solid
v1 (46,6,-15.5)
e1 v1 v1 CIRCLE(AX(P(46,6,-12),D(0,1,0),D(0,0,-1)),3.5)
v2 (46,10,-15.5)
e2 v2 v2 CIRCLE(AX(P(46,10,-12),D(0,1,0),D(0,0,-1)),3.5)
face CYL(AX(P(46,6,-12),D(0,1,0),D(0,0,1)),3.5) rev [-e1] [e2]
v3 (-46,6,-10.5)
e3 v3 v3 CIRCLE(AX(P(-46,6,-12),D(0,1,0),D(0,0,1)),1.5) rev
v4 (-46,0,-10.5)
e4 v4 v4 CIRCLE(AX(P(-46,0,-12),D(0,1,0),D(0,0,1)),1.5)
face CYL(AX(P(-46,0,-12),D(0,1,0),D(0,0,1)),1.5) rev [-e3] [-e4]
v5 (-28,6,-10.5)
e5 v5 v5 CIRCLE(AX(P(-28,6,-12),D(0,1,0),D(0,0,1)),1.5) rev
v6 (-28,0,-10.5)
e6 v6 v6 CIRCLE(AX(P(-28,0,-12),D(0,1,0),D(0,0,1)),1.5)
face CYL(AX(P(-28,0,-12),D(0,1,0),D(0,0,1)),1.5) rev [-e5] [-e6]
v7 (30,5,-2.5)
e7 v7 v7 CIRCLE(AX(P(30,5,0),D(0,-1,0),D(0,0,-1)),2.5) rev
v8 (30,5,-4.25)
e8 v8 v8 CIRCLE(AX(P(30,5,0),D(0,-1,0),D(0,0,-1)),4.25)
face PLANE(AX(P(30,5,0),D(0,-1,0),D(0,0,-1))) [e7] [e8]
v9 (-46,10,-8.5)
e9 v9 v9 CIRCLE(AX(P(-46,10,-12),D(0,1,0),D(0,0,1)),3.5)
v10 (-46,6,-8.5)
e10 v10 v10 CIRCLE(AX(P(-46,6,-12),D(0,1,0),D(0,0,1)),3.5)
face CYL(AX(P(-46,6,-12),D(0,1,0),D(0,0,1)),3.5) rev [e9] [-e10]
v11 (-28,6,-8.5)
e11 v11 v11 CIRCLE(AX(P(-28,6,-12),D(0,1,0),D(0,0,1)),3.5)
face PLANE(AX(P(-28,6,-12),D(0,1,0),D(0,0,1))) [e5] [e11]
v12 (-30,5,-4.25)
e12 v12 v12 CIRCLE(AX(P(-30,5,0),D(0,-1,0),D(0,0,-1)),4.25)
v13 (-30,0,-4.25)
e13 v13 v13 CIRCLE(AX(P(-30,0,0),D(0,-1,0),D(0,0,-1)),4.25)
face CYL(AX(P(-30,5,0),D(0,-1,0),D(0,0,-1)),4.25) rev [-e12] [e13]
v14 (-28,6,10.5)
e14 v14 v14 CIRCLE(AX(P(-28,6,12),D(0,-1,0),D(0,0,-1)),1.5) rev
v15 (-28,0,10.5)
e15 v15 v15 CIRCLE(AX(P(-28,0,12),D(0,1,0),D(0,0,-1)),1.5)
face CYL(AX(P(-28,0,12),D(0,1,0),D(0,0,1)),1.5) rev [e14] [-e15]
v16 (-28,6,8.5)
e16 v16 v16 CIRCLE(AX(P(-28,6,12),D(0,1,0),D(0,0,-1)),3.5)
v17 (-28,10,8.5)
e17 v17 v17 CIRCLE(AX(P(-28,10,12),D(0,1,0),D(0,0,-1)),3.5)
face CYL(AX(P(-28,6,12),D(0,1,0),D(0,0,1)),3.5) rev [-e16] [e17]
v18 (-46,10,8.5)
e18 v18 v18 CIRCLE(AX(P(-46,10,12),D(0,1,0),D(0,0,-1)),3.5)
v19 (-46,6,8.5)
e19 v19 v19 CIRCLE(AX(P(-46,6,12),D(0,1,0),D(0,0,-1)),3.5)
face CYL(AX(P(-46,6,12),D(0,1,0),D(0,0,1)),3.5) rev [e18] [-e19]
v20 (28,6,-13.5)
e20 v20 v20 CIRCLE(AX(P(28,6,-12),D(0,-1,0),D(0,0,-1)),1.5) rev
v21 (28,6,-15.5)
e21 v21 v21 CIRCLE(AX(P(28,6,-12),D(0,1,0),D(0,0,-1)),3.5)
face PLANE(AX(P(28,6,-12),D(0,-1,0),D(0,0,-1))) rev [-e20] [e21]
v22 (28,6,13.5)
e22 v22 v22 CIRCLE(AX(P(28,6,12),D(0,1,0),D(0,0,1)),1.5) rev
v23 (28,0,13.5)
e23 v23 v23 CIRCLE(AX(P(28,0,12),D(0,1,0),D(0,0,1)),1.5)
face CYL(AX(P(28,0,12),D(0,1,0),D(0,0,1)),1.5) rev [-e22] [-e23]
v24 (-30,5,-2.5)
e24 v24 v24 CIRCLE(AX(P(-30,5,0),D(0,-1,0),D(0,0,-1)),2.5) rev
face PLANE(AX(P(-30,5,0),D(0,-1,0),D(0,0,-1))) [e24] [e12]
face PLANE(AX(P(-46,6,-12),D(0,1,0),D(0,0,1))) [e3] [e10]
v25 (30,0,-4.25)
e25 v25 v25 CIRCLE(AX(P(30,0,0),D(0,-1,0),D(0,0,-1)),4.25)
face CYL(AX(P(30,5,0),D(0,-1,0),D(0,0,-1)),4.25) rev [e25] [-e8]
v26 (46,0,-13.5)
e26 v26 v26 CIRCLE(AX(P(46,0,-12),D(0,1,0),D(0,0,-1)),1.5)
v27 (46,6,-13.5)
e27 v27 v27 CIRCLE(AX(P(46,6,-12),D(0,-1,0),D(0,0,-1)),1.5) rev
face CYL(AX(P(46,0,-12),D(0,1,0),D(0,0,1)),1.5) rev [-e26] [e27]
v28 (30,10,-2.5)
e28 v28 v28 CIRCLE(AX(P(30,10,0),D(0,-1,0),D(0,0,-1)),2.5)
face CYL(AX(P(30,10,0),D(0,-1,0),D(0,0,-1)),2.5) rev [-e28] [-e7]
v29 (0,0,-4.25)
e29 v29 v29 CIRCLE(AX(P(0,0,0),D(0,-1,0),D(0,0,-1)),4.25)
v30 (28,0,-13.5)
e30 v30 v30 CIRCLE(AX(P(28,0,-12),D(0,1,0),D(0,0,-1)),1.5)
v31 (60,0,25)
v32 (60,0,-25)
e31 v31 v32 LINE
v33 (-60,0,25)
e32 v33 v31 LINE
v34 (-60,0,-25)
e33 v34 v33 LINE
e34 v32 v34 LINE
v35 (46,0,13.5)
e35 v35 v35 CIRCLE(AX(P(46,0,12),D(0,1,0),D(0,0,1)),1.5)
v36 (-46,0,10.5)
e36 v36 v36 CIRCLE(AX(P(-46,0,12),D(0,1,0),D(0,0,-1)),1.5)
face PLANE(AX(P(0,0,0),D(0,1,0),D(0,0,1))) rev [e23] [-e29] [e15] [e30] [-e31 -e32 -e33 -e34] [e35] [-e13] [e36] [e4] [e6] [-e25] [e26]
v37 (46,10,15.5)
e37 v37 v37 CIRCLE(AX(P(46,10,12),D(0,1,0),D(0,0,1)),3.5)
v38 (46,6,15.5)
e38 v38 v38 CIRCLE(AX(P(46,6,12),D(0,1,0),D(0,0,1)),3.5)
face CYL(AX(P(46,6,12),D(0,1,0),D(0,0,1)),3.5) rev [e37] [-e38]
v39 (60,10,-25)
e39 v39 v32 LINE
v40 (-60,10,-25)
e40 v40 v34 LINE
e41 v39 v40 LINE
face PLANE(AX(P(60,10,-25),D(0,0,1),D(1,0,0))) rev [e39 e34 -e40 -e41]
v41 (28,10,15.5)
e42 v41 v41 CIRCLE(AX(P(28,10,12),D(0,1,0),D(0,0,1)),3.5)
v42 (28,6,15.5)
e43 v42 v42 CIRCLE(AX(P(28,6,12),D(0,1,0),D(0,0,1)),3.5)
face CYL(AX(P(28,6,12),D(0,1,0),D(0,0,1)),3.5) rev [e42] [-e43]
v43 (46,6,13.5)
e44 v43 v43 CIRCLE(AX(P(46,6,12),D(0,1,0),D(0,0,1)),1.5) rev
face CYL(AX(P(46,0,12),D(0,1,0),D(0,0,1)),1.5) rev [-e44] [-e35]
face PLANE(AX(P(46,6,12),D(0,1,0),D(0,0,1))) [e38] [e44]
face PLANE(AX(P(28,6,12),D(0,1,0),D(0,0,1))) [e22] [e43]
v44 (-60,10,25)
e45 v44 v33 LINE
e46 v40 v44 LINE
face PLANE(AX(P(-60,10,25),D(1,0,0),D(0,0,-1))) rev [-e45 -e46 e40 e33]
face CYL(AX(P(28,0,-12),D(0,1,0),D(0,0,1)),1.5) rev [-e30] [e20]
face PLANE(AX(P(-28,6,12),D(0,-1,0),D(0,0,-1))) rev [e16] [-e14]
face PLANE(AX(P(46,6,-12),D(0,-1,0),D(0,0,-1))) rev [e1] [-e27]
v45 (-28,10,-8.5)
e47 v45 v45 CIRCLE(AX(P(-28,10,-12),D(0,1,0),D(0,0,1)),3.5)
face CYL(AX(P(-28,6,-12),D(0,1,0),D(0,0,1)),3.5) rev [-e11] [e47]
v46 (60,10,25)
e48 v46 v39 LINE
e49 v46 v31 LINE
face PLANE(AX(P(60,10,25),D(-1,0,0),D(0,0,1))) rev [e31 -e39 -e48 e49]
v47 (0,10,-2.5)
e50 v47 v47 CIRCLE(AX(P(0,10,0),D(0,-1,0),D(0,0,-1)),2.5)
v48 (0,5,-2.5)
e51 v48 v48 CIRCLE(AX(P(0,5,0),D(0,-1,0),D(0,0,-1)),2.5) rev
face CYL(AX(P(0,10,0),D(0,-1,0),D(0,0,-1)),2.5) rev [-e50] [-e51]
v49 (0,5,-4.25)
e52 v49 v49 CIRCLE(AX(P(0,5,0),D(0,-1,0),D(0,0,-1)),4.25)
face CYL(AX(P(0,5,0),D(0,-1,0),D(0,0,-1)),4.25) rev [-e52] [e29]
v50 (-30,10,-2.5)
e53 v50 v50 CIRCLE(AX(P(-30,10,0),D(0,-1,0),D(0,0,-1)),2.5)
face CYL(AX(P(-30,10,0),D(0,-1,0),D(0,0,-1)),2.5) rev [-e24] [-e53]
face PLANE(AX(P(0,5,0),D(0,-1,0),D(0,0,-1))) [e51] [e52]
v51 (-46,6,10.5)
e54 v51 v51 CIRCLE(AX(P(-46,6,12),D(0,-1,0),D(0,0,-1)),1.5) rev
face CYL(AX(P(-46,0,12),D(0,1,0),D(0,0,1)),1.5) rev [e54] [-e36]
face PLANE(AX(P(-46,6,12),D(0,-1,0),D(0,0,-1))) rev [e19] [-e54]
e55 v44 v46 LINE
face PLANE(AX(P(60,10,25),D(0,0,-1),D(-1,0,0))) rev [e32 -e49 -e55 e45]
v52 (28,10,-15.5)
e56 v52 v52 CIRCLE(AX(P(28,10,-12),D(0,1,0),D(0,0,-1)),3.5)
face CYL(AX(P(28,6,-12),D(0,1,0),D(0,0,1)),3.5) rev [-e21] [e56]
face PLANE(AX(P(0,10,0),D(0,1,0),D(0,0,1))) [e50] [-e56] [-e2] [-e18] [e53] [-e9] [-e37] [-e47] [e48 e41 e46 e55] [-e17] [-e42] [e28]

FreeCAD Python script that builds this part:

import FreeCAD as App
import Part
import Sketcher

V = App.Vector


def add_polygon(sketch, points):
    """Adds a closed chain of lines whose ends are joined by coincident constraints."""
    first, n = sketch.GeometryCount, len(points)
    for a, b in zip(points, points[1:] + points[:1]):
        sketch.addGeometry(Part.LineSegment(App.Vector(*a, 0), App.Vector(*b, 0)), False)
    for i in range(n):
        sketch.addConstraint(Sketcher.Constraint("Coincident", first + i, 2, first + (i + 1) % n, 1))

doc = App.newDocument("Part")
body = doc.addObject("PartDesign::Body", "Body")

sketch1 = doc.addObject("Sketcher::SketchObject", "Sketch")
body.addObject(sketch1)
sketch1.AttachmentSupport = (doc.XZ_Plane, [""])
sketch1.MapMode = "FlatFace"
add_polygon(sketch1, [(-60, -25), (-60, 25), (60, 25), (60, -25)])
sketch1.addConstraint([
    Sketcher.Constraint("Vertical", 0),
    Sketcher.Constraint("Horizontal", 1),
    Sketcher.Constraint("Vertical", 2),
    Sketcher.Constraint("Horizontal", 3),
    Sketcher.Constraint("Symmetric", 0, 2, 2, 2, -1, 1),
    Sketcher.Constraint("DistanceX", 1, 1, 1, 2, 120.0),
    Sketcher.Constraint("DistanceY", 0, 1, 0, 2, 50.0),
])
pad1 = doc.addObject("PartDesign::Pad", "Pad")
body.addObject(pad1)
pad1.Profile = sketch1
pad1.Length = 10
pad1.Reversed = True

sketch2 = doc.addObject("Sketcher::SketchObject", "Sketch001")
body.addObject(sketch2)
sketch2.AttachmentSupport = (doc.XZ_Plane, [""])
sketch2.MapMode = "FlatFace"
sketch2.AttachmentOffset = App.Placement(V(0, 0, -10), App.Rotation())
sketch2.addGeometry([
    Part.Circle(V(-28, 12, 0), V(0, 0, 1), 1.5),
    Part.Circle(V(-46, 12, 0), V(0, 0, 1), 1.5),
    Part.Circle(V(28, 12, 0), V(0, 0, 1), 1.5),
    Part.Circle(V(46, 12, 0), V(0, 0, 1), 1.5),
    Part.Circle(V(46, -12, 0), V(0, 0, 1), 1.5),
    Part.Circle(V(28, -12, 0), V(0, 0, 1), 1.5),
    Part.Circle(V(-46, -12, 0), V(0, 0, 1), 1.5),
    Part.Circle(V(-28, -12, 0), V(0, 0, 1), 1.5),
], False)
sketch2.addConstraint([
    Sketcher.Constraint("Equal", 0, 1),
    Sketcher.Constraint("Equal", 1, 2),
    Sketcher.Constraint("Equal", 2, 3),
    Sketcher.Constraint("Equal", 3, 4),
    Sketcher.Constraint("Equal", 4, 5),
    Sketcher.Constraint("Equal", 5, 6),
    Sketcher.Constraint("Equal", 6, 7),
    Sketcher.Constraint("Symmetric", 1, 3, 4, 3, -1, 1),
    Sketcher.Constraint("Symmetric", 0, 3, 5, 3, -1, 1),
    Sketcher.Constraint("Symmetric", 3, 3, 6, 3, -1, 1),
    Sketcher.Constraint("Symmetric", 2, 3, 7, 3, -1, 1),
    Sketcher.Constraint("Symmetric", 0, 3, 2, 3, -2),
    Sketcher.Constraint("Symmetric", 1, 3, 3, 3, -2),
    Sketcher.Constraint("Horizontal", 0, 3, 1, 3),
    Sketcher.Constraint("Diameter", 0, 3.0),
    Sketcher.Constraint("DistanceX", 0, 3, -1, 1, 28.0),
    Sketcher.Constraint("DistanceY", -1, 1, 0, 3, 12.0),
    Sketcher.Constraint("DistanceX", 1, 3, -1, 1, 46.0),
])
pocket1 = doc.addObject("PartDesign::Pocket", "Pocket")
body.addObject(pocket1)
pocket1.Profile = sketch2
pocket1.Type = "ThroughAll"
pocket1.Reversed = True

sketch3 = doc.addObject("Sketcher::SketchObject", "Sketch002")
body.addObject(sketch3)
sketch3.AttachmentSupport = (doc.XZ_Plane, [""])
sketch3.MapMode = "FlatFace"
sketch3.addGeometry([
    Part.Circle(V(0, 0, 0), V(0, 0, 1), 2.5),
    Part.Circle(V(30, 0, 0), V(0, 0, 1), 2.5),
    Part.Circle(V(-30, 0, 0), V(0, 0, 1), 2.5),
], False)
sketch3.addConstraint([
    Sketcher.Constraint("Coincident", 0, 3, -1, 1),
    Sketcher.Constraint("Equal", 0, 1),
    Sketcher.Constraint("Equal", 1, 2),
    Sketcher.Constraint("Symmetric", 1, 3, 2, 3, -1, 1),
    Sketcher.Constraint("PointOnObject", 1, 3, -1),
    Sketcher.Constraint("Diameter", 0, 5.0),
    Sketcher.Constraint("DistanceX", -1, 1, 1, 3, 30.0),
])
pocket2 = doc.addObject("PartDesign::Pocket", "Pocket001")
body.addObject(pocket2)
pocket2.Profile = sketch3
pocket2.Type = "ThroughAll"

sketch4 = doc.addObject("Sketcher::SketchObject", "Sketch003")
body.addObject(sketch4)
sketch4.AttachmentSupport = (doc.XZ_Plane, [""])
sketch4.MapMode = "FlatFace"
sketch4.addGeometry([
    Part.Circle(V(30, 0, 0), V(0, 0, 1), 4.2),
    Part.Circle(V(0, 0, 0), V(0, 0, 1), 4.2),
    Part.Circle(V(-30, 0, 0), V(0, 0, 1), 4.2),
], False)
sketch4.addConstraint([
    Sketcher.Constraint("Coincident", 1, 3, -1, 1),
    Sketcher.Constraint("Equal", 0, 1),
    Sketcher.Constraint("Equal", 1, 2),
    Sketcher.Constraint("Symmetric", 0, 3, 2, 3, -1, 1),
    Sketcher.Constraint("PointOnObject", 0, 3, -1),
    Sketcher.Constraint("Diameter", 0, 8.5),
    Sketcher.Constraint("DistanceX", -1, 1, 0, 3, 30.0),
])
pocket3 = doc.addObject("PartDesign::Pocket", "Pocket002")
body.addObject(pocket3)
pocket3.Profile = sketch4
pocket3.Length = 5

sketch5 = doc.addObject("Sketcher::SketchObject", "Sketch004")
body.addObject(sketch5)
sketch5.AttachmentSupport = (doc.XZ_Plane, [""])
sketch5.MapMode = "FlatFace"
sketch5.AttachmentOffset = App.Placement(V(0, 0, -10), App.Rotation())
sketch5.addGeometry([
    Part.Circle(V(-46, -12, 0), V(0, 0, 1), 3.5),
    Part.Circle(V(-28, -12, 0), V(0, 0, 1), 3.5),
    Part.Circle(V(-28, 12, 0), V(0, 0, 1), 3.5),
    Part.Circle(V(-46, 12, 0), V(0, 0, 1), 3.5),
    Part.Circle(V(46, 12, 0), V(0, 0, 1), 3.5),
    Part.Circle(V(28, 12, 0), V(0, 0, 1), 3.5),
    Part.Circle(V(28, -12, 0), V(0, 0, 1), 3.5),
    Part.Circle(V(46, -12, 0), V(0, 0, 1), 3.5),
], False)
sketch5.addConstraint([
    Sketcher.Constraint("Equal", 0, 1),
    Sketcher.Constraint("Equal", 1, 2),
    Sketcher.Constraint("Equal", 2, 3),
    Sketcher.Constraint("Equal", 3, 4),
    Sketcher.Constraint("Equal", 4, 5),
    Sketcher.Constraint("Equal", 5, 6),
    Sketcher.Constraint("Equal", 6, 7),
    Sketcher.Constraint("Symmetric", 0, 3, 4, 3, -1, 1),
    Sketcher.Constraint("Symmetric", 1, 3, 5, 3, -1, 1),
    Sketcher.Constraint("Symmetric", 2, 3, 6, 3, -1, 1),
    Sketcher.Constraint("Symmetric", 3, 3, 7, 3, -1, 1),
    Sketcher.Constraint("Symmetric", 3, 3, 4, 3, -2),
    Sketcher.Constraint("Symmetric", 2, 3, 5, 3, -2),
    Sketcher.Constraint("Horizontal", 0, 3, 1, 3),
    Sketcher.Constraint("Diameter", 0, 7.0),
    Sketcher.Constraint("DistanceX", 0, 3, -1, 1, 46.0),
    Sketcher.Constraint("DistanceY", 0, 3, -1, 1, 12.0),
    Sketcher.Constraint("DistanceX", 1, 3, -1, 1, 28.0),
])
pocket4 = doc.addObject("PartDesign::Pocket", "Pocket003")
body.addObject(pocket4)
pocket4.Profile = sketch5
pocket4.Length = 4
pocket4.Reversed = True

doc.recompute()
